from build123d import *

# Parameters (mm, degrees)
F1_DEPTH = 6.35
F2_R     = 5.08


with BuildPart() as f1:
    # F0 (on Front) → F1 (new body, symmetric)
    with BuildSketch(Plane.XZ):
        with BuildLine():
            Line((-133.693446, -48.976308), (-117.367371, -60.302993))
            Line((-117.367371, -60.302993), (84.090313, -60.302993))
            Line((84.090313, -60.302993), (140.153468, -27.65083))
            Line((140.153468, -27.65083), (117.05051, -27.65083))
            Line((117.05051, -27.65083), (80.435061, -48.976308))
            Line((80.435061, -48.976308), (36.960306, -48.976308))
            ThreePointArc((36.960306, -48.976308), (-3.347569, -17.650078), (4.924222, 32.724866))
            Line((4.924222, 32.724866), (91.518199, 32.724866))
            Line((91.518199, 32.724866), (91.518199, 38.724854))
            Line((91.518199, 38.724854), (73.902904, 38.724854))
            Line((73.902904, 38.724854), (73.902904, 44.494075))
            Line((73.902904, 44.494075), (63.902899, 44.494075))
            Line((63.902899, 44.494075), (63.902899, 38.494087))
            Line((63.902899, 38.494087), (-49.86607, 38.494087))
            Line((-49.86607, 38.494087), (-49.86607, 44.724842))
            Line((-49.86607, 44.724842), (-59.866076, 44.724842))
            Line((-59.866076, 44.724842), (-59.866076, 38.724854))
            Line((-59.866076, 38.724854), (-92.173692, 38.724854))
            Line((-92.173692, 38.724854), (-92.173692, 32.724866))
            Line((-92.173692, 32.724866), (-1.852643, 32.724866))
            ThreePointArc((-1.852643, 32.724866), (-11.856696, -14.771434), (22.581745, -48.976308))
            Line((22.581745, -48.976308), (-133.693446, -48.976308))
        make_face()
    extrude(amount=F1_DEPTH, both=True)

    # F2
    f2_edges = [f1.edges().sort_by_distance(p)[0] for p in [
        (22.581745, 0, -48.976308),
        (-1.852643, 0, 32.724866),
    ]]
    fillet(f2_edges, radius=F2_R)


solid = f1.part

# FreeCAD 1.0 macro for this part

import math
import FreeCAD as App
import Part
import Sketcher

V = App.Vector
Q = App.Units.Quantity


def edges_at(feature, points):
    """Names of the edges that pass closest to the given points."""
    edges = feature.Shape.Edges
    near = lambda p: min(range(len(edges)), key=lambda i: edges[i].distToShape(Part.Vertex(*p))[0])
    return sorted({f"Edge{near(p) + 1}" for p in points})

doc = App.newDocument("Part")
body = doc.addObject("PartDesign::Body", "Body")

sketch1 = body.newObject("Sketcher::SketchObject", "Sketch")
sketch1.AttachmentSupport = (doc.getObject("XZ_Plane"), [""])
sketch1.MapMode = "FlatFace"
sketch1.addGeometry([
    Part.LineSegment(V(-134, -49, 0), V(-117, -60, 0)),
    Part.LineSegment(V(-117, -60, 0), V(84, -60, 0)),
    Part.LineSegment(V(84, -60, 0), V(140, -28, 0)),
    Part.LineSegment(V(140, -28, 0), V(117, -28, 0)),
    Part.LineSegment(V(117, -28, 0), V(80, -49, 0)),
    Part.LineSegment(V(80, -49, 0), V(37, -49, 0)),
    Part.ArcOfCircle(Part.Circle(V(43, 1, 0), V(0, 0, 1), 50), math.radians(140), math.radians(263)),
    Part.LineSegment(V(5, 33, 0), V(92, 33, 0)),
    Part.LineSegment(V(92, 33, 0), V(92, 39, 0)),
    Part.LineSegment(V(92, 39, 0), V(74, 39, 0)),
    Part.LineSegment(V(74, 39, 0), V(74, 44, 0)),
    Part.LineSegment(V(74, 44, 0), V(64, 44, 0)),
    Part.LineSegment(V(64, 44, 0), V(64, 38, 0)),
    Part.LineSegment(V(64, 38, 0), V(-50, 38, 0)),
    Part.LineSegment(V(-50, 38, 0), V(-50, 45, 0)),
    Part.LineSegment(V(-50, 45, 0), V(-60, 45, 0)),
    Part.LineSegment(V(-60, 45, 0), V(-60, 39, 0)),
    Part.LineSegment(V(-60, 39, 0), V(-92, 39, 0)),
    Part.LineSegment(V(-92, 39, 0), V(-92, 33, 0)),
    Part.LineSegment(V(-92, 33, 0), V(-2, 33, 0)),
    Part.ArcOfCircle(Part.Circle(V(37, 0, 0), V(0, 0, 1), 51), math.radians(140), math.radians(254)),
    Part.LineSegment(V(23, -49, 0), V(-134, -49, 0)),
], False)
sketch1.addConstraint([
    Sketcher.Constraint("Coincident", 0, 2, 1, 1),
    Sketcher.Constraint("Coincident", 1, 2, 2, 1),
    Sketcher.Constraint("Coincident", 2, 2, 3, 1),
    Sketcher.Constraint("Coincident", 3, 2, 4, 1),
    Sketcher.Constraint("Coincident", 4, 2, 5, 1),
    Sketcher.Constraint("Coincident", 5, 2, 6, 2),
    Sketcher.Constraint("Coincident", 6, 1, 7, 1),
    Sketcher.Constraint("Coincident", 7, 2, 8, 1),
    Sketcher.Constraint("Coincident", 8, 2, 9, 1),
    Sketcher.Constraint("Coincident", 9, 2, 10, 1),
    Sketcher.Constraint("Coincident", 10, 2, 11, 1),
    Sketcher.Constraint("Coincident", 11, 2, 12, 1),
    Sketcher.Constraint("Coincident", 12, 2, 13, 1),
    Sketcher.Constraint("Coincident", 13, 2, 14, 1),
    Sketcher.Constraint("Coincident", 14, 2, 15, 1),
    Sketcher.Constraint("Coincident", 15, 2, 16, 1),
    Sketcher.Constraint("Coincident", 16, 2, 17, 1),
    Sketcher.Constraint("Coincident", 17, 2, 18, 1),
    Sketcher.Constraint("Coincident", 18, 2, 19, 1),
    Sketcher.Constraint("Coincident", 19, 2, 20, 1),
    Sketcher.Constraint("Coincident", 20, 2, 21, 1),
    Sketcher.Constraint("Coincident", 21, 2, 0, 1),
    Sketcher.Constraint("Horizontal", 1),
    Sketcher.Constraint("Horizontal", 3),
    Sketcher.Constraint("Horizontal", 5),
    Sketcher.Constraint("Horizontal", 7),
    Sketcher.Constraint("Vertical", 8),
    Sketcher.Constraint("Horizontal", 9),
    Sketcher.Constraint("Vertical", 10),
    Sketcher.Constraint("Horizontal", 11),
    Sketcher.Constraint("Vertical", 12),
    Sketcher.Constraint("Horizontal", 13),
    Sketcher.Constraint("Vertical", 14),
    Sketcher.Constraint("Horizontal", 15),
    Sketcher.Constraint("Vertical", 16),
    Sketcher.Constraint("Horizontal", 17),
    Sketcher.Constraint("Vertical", 18),
    Sketcher.Constraint("Horizontal", 19),
    Sketcher.Constraint("Horizontal", 21),
    Sketcher.Constraint("Parallel", 2, 4),
    Sketcher.Constraint("Horizontal", 9, 2, 16, 2),
    Sketcher.Constraint("Horizontal", 7, 2, 18, 2),
    Sketcher.Constraint("Horizontal", 5, 2, 20, 2),
    Sketcher.Constraint("Equal", 11, 15),
    Sketcher.Constraint("Equal", 8, 12),
    Sketcher.Constraint("Equal", 12, 16),
    Sketcher.Constraint("Radius", 6, 49.942828),
    Sketcher.Constraint("Radius", 20, 50.789139),
    Sketcher.Constraint("DistanceX", 6, 3, 11, 2, Q("0.8170999 in")),
    Sketcher.Constraint("DistanceX", 3, 2, 3, 1, 23.102958),
    Sketcher.Constraint("DistanceX", 13, 2, 13, 1, 113.768969),
    Sketcher.Constraint("DistanceX", 19, 1, 19, 2, 90.321049),
    Sketcher.Constraint("DistanceX", 21, 2, 21, 1, 156.275191),
    Sketcher.Constraint("DistanceY", 8, 1, 8, 2, 5.999988),
    Sketcher.Constraint("DistanceY", 10, 1, 10, 2, 5.769221),
    Sketcher.Constraint("DistanceX", -1, 1, 7, 2, 91.518199),
    Sketcher.Constraint("DistanceX", -1, 1, 11, 2, 63.902899),
    Sketcher.Constraint("DistanceY", 0, 2, 20, 3, 60.084198),
    Sketcher.Constraint("DistanceX", 20, 3, 3, 2, 80.247599),
    Sketcher.Constraint("DistanceX", 6, 3, 4, 2, 37.286501),
    Sketcher.Constraint("DistanceY", 6, 3, 8, 2, 38.1432),
    Sketcher.Constraint("DistanceX", 15, 2, 6, 1, 64.790298),
    Sketcher.Constraint("DistanceX", 1, 1, 1, 2, 201.457684),
    Sketcher.Constraint("DistanceX", 5, 2, 5, 1, 43.474755),
    Sketcher.Constraint("DistanceX", 17, 2, 17, 1, 32.307616),
    Sketcher.Constraint("DistanceX", -1, 1, 20, 3, 36.802911),
    Sketcher.Constraint("DistanceX", 0, 2, -1, 1, 117.367371),
    Sketcher.Constraint("DistanceY", 2, 2, -1, 1, 27.65083),
])
pad1 = body.newObject("PartDesign::Pad", "Pad")
pad1.Profile = sketch1
pad1.Length = Q("0.5 in")
pad1.Midplane = True
doc.recompute()

fillet = body.newObject("PartDesign::Fillet", "Fillet")
fillet.Base = (pad1, edges_at(pad1, [(22.582, 0, -48.976), (-1.853, 0, 32.725)]))
fillet.Radius = Q("0.2 in")

doc.recompute()
